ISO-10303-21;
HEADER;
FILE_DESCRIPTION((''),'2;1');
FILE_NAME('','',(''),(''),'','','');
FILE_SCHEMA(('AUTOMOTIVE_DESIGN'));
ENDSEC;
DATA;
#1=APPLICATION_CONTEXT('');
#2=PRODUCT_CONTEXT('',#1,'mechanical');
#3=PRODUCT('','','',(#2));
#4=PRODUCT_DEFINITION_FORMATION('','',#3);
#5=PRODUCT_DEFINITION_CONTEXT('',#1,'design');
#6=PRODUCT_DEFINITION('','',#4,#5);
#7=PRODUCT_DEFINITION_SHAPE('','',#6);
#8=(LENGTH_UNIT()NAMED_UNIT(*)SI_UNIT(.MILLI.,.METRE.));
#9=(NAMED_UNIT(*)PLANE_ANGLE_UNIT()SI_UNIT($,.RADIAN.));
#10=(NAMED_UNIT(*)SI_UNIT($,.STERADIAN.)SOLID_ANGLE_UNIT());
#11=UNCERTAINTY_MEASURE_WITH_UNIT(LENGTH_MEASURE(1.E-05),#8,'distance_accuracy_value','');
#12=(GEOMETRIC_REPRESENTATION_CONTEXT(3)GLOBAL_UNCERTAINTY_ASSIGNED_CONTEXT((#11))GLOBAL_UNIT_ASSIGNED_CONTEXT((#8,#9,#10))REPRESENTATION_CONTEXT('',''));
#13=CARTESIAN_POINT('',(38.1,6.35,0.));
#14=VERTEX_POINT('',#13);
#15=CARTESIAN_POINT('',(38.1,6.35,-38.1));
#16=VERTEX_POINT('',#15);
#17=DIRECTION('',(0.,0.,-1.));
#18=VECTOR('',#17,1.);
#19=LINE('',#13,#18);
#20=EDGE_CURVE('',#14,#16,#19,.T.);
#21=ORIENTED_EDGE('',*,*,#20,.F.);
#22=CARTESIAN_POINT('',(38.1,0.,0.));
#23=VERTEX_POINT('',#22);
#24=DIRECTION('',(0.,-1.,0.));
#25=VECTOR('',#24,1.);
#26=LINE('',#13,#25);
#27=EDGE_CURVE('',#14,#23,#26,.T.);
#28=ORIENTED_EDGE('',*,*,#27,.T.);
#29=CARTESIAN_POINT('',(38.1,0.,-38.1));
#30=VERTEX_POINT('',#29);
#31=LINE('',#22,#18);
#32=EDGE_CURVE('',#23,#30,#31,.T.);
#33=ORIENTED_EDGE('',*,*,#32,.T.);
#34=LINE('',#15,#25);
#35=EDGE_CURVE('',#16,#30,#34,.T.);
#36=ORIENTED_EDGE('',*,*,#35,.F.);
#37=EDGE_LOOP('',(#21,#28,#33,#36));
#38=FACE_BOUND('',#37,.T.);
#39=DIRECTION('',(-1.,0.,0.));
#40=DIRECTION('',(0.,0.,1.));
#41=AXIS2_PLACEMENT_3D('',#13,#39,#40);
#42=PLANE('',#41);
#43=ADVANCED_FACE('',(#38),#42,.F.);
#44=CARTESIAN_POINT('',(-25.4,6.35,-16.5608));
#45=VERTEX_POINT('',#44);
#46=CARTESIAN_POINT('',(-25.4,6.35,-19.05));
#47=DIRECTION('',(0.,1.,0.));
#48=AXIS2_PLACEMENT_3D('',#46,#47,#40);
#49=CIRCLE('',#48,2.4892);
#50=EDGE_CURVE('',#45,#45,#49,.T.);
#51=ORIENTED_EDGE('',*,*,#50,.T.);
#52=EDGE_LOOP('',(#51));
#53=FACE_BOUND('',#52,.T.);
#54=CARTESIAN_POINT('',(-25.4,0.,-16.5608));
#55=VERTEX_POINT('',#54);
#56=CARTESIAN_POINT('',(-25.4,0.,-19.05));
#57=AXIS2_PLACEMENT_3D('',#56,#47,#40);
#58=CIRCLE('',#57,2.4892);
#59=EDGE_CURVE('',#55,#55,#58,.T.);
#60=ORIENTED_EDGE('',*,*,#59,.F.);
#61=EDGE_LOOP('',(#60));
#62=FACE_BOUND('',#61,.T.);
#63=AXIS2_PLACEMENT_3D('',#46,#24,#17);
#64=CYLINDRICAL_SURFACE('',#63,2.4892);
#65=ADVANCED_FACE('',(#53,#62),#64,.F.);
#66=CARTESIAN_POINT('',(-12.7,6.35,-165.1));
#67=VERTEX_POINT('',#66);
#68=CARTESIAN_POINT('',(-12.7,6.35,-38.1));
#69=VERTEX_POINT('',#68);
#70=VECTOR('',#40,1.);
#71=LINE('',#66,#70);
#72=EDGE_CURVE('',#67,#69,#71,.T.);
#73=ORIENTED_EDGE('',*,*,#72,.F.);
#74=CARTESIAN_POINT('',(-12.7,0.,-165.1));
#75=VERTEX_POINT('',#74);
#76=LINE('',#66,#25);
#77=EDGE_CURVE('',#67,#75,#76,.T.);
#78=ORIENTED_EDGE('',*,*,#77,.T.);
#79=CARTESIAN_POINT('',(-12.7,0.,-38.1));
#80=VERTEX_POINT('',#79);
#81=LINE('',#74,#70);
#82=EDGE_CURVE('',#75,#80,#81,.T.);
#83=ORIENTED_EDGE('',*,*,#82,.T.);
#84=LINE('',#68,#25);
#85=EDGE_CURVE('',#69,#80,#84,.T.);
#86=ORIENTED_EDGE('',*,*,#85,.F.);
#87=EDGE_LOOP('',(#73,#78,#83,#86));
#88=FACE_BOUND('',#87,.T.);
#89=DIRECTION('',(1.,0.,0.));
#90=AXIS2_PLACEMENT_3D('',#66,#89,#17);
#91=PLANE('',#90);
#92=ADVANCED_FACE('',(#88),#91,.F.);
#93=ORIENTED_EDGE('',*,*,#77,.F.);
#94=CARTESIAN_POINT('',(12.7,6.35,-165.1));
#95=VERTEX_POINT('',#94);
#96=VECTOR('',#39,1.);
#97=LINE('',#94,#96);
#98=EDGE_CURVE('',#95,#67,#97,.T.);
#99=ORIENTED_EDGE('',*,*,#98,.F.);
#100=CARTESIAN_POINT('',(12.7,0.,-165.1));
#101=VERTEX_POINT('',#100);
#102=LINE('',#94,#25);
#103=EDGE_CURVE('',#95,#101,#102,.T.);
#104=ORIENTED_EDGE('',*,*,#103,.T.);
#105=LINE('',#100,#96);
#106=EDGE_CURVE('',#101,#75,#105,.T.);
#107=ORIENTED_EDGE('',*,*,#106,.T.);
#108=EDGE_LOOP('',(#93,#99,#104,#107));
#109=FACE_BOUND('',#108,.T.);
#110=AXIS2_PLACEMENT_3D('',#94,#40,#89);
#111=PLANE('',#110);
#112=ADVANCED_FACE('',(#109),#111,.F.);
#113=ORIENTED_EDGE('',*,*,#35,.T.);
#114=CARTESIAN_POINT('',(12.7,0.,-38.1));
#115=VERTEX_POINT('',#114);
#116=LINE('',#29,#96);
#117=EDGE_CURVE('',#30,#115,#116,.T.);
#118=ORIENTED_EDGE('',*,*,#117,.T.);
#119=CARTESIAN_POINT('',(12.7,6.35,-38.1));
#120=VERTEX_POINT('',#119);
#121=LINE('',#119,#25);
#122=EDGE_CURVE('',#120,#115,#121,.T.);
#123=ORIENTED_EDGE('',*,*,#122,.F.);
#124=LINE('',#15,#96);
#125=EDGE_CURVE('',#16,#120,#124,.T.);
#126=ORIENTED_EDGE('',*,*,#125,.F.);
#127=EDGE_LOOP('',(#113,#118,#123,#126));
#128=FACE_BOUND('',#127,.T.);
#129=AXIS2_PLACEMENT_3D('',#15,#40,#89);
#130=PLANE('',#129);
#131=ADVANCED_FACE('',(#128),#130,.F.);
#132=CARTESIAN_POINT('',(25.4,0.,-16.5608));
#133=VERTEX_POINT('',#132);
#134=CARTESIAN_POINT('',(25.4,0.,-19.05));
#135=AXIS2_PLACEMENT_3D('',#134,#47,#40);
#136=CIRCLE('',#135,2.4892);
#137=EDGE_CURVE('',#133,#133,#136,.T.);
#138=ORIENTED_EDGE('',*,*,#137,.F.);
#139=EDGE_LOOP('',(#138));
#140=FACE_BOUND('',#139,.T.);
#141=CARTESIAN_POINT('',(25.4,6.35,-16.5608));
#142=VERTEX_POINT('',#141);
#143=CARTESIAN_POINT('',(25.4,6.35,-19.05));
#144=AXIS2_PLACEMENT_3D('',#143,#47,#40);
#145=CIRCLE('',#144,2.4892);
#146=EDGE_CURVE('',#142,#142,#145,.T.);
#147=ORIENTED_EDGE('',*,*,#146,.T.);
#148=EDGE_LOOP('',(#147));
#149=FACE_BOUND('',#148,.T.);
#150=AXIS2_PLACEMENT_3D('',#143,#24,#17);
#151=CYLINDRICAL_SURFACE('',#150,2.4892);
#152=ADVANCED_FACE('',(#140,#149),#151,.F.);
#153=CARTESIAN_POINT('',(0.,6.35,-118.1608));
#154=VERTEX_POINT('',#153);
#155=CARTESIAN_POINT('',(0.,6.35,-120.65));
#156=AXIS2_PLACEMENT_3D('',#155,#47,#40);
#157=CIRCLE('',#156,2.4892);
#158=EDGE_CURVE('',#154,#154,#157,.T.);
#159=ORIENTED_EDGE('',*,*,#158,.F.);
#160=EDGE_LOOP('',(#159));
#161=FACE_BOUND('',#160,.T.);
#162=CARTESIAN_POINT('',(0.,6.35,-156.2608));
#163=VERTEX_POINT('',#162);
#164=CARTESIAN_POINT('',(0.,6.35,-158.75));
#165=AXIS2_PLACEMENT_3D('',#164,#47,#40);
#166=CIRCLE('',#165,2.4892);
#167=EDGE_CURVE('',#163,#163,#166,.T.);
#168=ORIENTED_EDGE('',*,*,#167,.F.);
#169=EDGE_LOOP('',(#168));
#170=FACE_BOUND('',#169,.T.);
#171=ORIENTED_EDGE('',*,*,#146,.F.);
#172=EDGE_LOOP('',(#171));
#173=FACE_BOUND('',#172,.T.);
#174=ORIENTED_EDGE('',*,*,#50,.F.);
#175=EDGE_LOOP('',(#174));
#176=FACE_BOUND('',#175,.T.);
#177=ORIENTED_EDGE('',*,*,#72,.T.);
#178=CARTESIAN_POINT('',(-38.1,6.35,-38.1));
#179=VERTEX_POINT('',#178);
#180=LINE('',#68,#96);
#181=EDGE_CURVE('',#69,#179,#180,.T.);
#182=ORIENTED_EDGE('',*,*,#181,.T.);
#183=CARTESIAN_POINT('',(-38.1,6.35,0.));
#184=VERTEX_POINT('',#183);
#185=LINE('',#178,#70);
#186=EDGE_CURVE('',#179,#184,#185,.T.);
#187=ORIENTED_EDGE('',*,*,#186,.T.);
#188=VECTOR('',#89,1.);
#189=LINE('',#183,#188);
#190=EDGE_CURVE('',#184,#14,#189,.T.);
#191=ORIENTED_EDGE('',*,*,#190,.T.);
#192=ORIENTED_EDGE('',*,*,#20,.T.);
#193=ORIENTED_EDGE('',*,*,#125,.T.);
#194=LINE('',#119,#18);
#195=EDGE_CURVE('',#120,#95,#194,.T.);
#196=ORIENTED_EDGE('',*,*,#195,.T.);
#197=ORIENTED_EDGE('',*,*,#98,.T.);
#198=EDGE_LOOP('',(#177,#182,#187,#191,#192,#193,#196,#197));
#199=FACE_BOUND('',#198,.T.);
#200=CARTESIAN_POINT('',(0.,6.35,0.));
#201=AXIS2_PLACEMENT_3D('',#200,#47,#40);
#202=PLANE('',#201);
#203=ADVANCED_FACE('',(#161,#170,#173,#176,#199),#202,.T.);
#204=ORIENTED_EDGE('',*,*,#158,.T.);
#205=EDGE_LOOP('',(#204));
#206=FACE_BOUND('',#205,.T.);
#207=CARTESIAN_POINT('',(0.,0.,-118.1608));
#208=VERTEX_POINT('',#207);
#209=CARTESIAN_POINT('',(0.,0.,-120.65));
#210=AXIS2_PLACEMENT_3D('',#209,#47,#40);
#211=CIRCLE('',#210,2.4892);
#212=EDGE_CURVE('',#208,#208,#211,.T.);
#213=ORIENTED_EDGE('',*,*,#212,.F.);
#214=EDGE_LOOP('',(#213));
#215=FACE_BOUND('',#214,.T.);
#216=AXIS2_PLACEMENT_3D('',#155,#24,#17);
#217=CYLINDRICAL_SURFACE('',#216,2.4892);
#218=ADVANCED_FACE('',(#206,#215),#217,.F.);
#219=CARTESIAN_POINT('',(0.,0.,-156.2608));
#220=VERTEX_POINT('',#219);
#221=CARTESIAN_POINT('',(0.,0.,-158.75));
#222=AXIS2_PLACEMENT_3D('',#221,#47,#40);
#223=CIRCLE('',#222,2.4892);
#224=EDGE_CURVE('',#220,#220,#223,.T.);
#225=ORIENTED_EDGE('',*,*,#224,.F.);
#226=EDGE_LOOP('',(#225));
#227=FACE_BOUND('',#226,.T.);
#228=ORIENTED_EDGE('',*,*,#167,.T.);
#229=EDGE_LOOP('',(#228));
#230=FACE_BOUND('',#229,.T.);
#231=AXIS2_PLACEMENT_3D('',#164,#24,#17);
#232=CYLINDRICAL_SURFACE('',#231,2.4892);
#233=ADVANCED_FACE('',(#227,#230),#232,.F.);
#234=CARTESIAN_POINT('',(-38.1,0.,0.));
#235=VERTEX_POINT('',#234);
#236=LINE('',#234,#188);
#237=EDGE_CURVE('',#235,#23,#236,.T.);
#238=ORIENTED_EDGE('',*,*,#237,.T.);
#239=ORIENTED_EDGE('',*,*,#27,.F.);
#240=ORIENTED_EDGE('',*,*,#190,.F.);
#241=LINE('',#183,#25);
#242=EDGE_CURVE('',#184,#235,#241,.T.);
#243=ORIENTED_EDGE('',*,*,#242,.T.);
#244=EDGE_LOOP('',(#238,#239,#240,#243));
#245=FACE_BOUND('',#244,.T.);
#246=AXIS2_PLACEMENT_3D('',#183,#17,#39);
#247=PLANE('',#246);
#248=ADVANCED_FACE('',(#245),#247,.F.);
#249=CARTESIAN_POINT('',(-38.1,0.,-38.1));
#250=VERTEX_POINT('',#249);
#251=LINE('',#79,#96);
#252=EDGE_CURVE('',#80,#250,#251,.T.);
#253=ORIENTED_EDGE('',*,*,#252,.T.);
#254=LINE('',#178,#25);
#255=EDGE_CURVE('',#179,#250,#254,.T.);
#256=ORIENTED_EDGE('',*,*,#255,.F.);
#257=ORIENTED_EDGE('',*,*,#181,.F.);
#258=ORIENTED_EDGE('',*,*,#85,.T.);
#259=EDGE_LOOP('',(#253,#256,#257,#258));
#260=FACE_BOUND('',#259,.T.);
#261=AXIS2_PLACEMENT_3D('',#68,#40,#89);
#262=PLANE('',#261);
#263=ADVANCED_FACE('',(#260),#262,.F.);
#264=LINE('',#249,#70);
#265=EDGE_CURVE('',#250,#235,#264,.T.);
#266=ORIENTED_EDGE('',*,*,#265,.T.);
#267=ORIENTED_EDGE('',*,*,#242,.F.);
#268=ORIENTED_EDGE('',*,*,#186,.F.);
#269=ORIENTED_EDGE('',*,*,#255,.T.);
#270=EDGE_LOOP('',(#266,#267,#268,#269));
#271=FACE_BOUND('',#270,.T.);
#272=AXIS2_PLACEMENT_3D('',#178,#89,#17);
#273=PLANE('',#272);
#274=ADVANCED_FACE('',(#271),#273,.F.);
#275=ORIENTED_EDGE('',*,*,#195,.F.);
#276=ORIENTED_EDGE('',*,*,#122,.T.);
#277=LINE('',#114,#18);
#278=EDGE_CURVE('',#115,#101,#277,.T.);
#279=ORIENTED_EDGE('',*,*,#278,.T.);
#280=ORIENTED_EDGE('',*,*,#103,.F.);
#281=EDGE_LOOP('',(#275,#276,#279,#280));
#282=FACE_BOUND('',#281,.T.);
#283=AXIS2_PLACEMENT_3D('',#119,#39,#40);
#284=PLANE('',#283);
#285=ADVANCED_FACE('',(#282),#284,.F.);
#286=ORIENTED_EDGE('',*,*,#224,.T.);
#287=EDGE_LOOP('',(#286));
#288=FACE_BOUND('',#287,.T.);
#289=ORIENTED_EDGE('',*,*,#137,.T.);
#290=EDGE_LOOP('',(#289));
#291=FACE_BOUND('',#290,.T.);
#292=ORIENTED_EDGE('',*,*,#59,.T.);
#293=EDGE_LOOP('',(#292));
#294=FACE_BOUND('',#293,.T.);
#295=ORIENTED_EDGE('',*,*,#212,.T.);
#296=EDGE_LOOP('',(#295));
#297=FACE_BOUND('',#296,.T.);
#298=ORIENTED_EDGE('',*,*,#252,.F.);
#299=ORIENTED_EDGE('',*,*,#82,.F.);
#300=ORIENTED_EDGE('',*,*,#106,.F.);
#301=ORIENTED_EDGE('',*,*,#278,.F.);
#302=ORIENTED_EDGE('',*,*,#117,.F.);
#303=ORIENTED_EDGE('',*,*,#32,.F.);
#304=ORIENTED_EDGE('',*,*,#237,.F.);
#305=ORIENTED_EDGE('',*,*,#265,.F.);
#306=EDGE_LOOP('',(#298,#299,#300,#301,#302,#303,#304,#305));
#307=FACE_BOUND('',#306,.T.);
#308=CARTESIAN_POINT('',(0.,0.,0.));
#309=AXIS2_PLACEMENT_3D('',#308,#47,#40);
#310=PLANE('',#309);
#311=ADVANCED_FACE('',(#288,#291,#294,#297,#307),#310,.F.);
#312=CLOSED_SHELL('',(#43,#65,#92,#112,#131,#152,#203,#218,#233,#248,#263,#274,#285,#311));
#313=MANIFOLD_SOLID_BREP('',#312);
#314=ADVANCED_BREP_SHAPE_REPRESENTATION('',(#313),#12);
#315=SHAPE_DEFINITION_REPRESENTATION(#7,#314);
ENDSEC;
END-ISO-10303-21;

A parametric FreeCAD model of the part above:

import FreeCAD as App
import Part
import Sketcher

V = App.Vector
Q = App.Units.Quantity

doc = App.newDocument("Part")
body = doc.addObject("PartDesign::Body", "Body")

sketch1 = doc.addObject("Sketcher::SketchObject", "Sketch")
body.addObject(sketch1)
sketch1.AttachmentSupport = (doc.XZ_Plane, [""])
sketch1.MapMode = "FlatFace"
sketch1.addGeometry([
    Part.LineSegment(V(-12.7, -165.1, 0), V(-12.7, -38.1, 0)),
    Part.LineSegment(V(-12.7, -38.1, 0), V(-38.1, -38.1, 0)),
    Part.LineSegment(V(-38.1, -38.1, 0), V(-38.1, 0, 0)),
    Part.LineSegment(V(-38.1, 0, 0), V(38.1, 0, 0)),
    Part.LineSegment(V(38.1, 0, 0), V(38.1, -38.1, 0)),
    Part.LineSegment(V(38.1, -38.1, 0), V(12.7, -38.1, 0)),
    Part.LineSegment(V(12.7, -38.1, 0), V(12.7, -165.1, 0)),
    Part.LineSegment(V(12.7, -165.1, 0), V(-12.7, -165.1, 0)),
    Part.Circle(V(-25.4, -19.1, 0), V(0, 0, 1), 2.5),
    Part.Circle(V(25.4, -19.1, 0), V(0, 0, 1), 2.5),
    Part.Circle(V(0, -120.7, 0), V(0, 0, 1), 2.5),
    Part.Circle(V(0, -158.8, 0), V(0, 0, 1), 2.5),
], False)
sketch1.addConstraint([
    Sketcher.Constraint("Coincident", 0, 2, 1, 1),
    Sketcher.Constraint("Coincident", 1, 2, 2, 1),
    Sketcher.Constraint("Coincident", 2, 2, 3, 1),
    Sketcher.Constraint("Coincident", 3, 2, 4, 1),
    Sketcher.Constraint("Coincident", 4, 2, 5, 1),
    Sketcher.Constraint("Coincident", 5, 2, 6, 1),
    Sketcher.Constraint("Coincident", 6, 2, 7, 1),
    Sketcher.Constraint("Coincident", 7, 2, 0, 1),
    Sketcher.Constraint("Vertical", 0),
    Sketcher.Constraint("Horizontal", 1),
    Sketcher.Constraint("Vertical", 2),
    Sketcher.Constraint("Horizontal", 3),
    Sketcher.Constraint("Vertical", 4),
    Sketcher.Constraint("Horizontal", 5),
    Sketcher.Constraint("Vertical", 6),
    Sketcher.Constraint("Horizontal", 7),
    Sketcher.Constraint("Equal", 8, 9),
    Sketcher.Constraint("Equal", 9, 10),
    Sketcher.Constraint("Equal", 10, 11),
    Sketcher.Constraint("Symmetric", 2, 2, 3, 2, -1, 1),
    Sketcher.Constraint("Symmetric", 8, 3, 9, 3, -2),
    Sketcher.Constraint("Symmetric", 0, 2, 5, 2, -2),
    Sketcher.Constraint("PointOnObject", 10, 3, -2),
    Sketcher.Constraint("PointOnObject", 11, 3, -2),
    Sketcher.Constraint("Equal", 5, 7),
    Sketcher.Constraint("DistanceX", 1, 2, 1, 1, Q("1 in")),
    Sketcher.Constraint("DistanceY", 0, 1, 0, 2, Q("5 in")),
    Sketcher.Constraint("Diameter", 8, Q("0.196 in")),
    Sketcher.Constraint("DistanceY", 2, 1, 2, 2, Q("1.5 in")),
    Sketcher.Constraint("DistanceX", 8, 3, -1, 1, Q("1 in")),
    Sketcher.Constraint("DistanceY", 10, 3, 8, 3, Q("4 in")),
    Sketcher.Constraint("DistanceY", 11, 3, 10, 3, Q("1.5 in")),
    Sketcher.Constraint("DistanceY", 8, 3, -1, 1, Q("0.75 in")),
])
pad1 = doc.addObject("PartDesign::Pad", "Pad")
body.addObject(pad1)
pad1.Profile = sketch1
pad1.Length = Q("0.25 in")
pad1.Reversed = True

doc.recompute()
